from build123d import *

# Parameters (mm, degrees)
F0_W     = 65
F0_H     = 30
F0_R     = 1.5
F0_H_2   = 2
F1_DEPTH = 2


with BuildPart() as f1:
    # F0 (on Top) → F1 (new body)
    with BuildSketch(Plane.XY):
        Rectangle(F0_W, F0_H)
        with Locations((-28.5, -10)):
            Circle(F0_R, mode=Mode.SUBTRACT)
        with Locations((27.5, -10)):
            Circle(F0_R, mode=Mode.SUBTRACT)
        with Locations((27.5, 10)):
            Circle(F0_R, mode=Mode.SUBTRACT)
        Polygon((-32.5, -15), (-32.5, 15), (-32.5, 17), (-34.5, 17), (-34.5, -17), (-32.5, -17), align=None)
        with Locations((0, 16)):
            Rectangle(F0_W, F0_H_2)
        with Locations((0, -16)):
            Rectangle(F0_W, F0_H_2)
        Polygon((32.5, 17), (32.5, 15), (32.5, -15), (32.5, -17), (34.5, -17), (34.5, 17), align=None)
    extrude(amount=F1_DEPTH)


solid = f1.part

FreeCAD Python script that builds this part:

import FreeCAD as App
import Part
import Sketcher
from FreeCAD import Vector
Q = App.Units.Quantity


def add_polygon(sketch, points):
    """Adds a closed chain of lines whose ends are joined by coincident constraints."""
    first, n = sketch.GeometryCount, len(points)
    for a, b in zip(points, points[1:] + points[:1]):
        sketch.addGeometry(Part.LineSegment(App.Vector(*a, 0), App.Vector(*b, 0)), False)
    for i in range(n):
        sketch.addConstraint(Sketcher.Constraint("Coincident", first + i, 2, first + (i + 1) % n, 1))

doc = App.newDocument("Part")
body = doc.addObject("PartDesign::Body", "Body")

# Sketch on XY plane
sketch1 = body.newObject("Sketcher::SketchObject", "Sketch")
sketch1.AttachmentSupport = (doc.getObject("XY_Plane"), [""])
sketch1.MapMode = "FlatFace"
add_polygon(sketch1, [(-34.5, 17), (-34.5, -17), (34.5, -17), (34.5, 17)])  # lines 0-3
sketch1.addGeometry(Part.Circle(Vector(-28.5, -10, 0), Vector(0, 0, 1), 1.5), False)  # 4
sketch1.addGeometry(Part.Circle(Vector(27.5, -10, 0), Vector(0, 0, 1), 1.5), False)  # 5
sketch1.addGeometry(Part.Circle(Vector(27.5, 10, 0), Vector(0, 0, 1), 1.5), False)  # 6
sketch1.addConstraint(Sketcher.Constraint("Vertical", 0))
sketch1.addConstraint(Sketcher.Constraint("Horizontal", 1))
sketch1.addConstraint(Sketcher.Constraint("Vertical", 2))
sketch1.addConstraint(Sketcher.Constraint("Horizontal", 3))
sketch1.addConstraint(Sketcher.Constraint("Equal", 4, 5))
sketch1.addConstraint(Sketcher.Constraint("Equal", 5, 6))
sketch1.addConstraint(Sketcher.Constraint("Symmetric", 0, 2, 2, 2, -1, 1))
sketch1.addConstraint(Sketcher.Constraint("Symmetric", 5, 3, 6, 3, -1))
sketch1.addConstraint(Sketcher.Constraint("Horizontal", 4, 3, 5, 3))
sketch1.addConstraint(Sketcher.Constraint("Diameter", 4, Q("3 mm")))
sketch1.addConstraint(Sketcher.Constraint("DistanceX", 1, 1, 1, 2, Q("69 mm")))
sketch1.addConstraint(Sketcher.Constraint("DistanceY", 0, 2, 0, 1, Q("34 mm")))
sketch1.addConstraint(Sketcher.Constraint("DistanceY", 4, 3, -1, 1, Q("10 mm")))
sketch1.addConstraint(Sketcher.Constraint("DistanceX", 4, 3, 5, 3, Q("56 mm")))
sketch1.addConstraint(Sketcher.Constraint("DistanceX", 0, 2, 4, 3, Q("6 mm")))
pad1 = body.newObject("PartDesign::Pad", "Pad")
pad1.Profile = sketch1
pad1.Length = 2

doc.recompute()
